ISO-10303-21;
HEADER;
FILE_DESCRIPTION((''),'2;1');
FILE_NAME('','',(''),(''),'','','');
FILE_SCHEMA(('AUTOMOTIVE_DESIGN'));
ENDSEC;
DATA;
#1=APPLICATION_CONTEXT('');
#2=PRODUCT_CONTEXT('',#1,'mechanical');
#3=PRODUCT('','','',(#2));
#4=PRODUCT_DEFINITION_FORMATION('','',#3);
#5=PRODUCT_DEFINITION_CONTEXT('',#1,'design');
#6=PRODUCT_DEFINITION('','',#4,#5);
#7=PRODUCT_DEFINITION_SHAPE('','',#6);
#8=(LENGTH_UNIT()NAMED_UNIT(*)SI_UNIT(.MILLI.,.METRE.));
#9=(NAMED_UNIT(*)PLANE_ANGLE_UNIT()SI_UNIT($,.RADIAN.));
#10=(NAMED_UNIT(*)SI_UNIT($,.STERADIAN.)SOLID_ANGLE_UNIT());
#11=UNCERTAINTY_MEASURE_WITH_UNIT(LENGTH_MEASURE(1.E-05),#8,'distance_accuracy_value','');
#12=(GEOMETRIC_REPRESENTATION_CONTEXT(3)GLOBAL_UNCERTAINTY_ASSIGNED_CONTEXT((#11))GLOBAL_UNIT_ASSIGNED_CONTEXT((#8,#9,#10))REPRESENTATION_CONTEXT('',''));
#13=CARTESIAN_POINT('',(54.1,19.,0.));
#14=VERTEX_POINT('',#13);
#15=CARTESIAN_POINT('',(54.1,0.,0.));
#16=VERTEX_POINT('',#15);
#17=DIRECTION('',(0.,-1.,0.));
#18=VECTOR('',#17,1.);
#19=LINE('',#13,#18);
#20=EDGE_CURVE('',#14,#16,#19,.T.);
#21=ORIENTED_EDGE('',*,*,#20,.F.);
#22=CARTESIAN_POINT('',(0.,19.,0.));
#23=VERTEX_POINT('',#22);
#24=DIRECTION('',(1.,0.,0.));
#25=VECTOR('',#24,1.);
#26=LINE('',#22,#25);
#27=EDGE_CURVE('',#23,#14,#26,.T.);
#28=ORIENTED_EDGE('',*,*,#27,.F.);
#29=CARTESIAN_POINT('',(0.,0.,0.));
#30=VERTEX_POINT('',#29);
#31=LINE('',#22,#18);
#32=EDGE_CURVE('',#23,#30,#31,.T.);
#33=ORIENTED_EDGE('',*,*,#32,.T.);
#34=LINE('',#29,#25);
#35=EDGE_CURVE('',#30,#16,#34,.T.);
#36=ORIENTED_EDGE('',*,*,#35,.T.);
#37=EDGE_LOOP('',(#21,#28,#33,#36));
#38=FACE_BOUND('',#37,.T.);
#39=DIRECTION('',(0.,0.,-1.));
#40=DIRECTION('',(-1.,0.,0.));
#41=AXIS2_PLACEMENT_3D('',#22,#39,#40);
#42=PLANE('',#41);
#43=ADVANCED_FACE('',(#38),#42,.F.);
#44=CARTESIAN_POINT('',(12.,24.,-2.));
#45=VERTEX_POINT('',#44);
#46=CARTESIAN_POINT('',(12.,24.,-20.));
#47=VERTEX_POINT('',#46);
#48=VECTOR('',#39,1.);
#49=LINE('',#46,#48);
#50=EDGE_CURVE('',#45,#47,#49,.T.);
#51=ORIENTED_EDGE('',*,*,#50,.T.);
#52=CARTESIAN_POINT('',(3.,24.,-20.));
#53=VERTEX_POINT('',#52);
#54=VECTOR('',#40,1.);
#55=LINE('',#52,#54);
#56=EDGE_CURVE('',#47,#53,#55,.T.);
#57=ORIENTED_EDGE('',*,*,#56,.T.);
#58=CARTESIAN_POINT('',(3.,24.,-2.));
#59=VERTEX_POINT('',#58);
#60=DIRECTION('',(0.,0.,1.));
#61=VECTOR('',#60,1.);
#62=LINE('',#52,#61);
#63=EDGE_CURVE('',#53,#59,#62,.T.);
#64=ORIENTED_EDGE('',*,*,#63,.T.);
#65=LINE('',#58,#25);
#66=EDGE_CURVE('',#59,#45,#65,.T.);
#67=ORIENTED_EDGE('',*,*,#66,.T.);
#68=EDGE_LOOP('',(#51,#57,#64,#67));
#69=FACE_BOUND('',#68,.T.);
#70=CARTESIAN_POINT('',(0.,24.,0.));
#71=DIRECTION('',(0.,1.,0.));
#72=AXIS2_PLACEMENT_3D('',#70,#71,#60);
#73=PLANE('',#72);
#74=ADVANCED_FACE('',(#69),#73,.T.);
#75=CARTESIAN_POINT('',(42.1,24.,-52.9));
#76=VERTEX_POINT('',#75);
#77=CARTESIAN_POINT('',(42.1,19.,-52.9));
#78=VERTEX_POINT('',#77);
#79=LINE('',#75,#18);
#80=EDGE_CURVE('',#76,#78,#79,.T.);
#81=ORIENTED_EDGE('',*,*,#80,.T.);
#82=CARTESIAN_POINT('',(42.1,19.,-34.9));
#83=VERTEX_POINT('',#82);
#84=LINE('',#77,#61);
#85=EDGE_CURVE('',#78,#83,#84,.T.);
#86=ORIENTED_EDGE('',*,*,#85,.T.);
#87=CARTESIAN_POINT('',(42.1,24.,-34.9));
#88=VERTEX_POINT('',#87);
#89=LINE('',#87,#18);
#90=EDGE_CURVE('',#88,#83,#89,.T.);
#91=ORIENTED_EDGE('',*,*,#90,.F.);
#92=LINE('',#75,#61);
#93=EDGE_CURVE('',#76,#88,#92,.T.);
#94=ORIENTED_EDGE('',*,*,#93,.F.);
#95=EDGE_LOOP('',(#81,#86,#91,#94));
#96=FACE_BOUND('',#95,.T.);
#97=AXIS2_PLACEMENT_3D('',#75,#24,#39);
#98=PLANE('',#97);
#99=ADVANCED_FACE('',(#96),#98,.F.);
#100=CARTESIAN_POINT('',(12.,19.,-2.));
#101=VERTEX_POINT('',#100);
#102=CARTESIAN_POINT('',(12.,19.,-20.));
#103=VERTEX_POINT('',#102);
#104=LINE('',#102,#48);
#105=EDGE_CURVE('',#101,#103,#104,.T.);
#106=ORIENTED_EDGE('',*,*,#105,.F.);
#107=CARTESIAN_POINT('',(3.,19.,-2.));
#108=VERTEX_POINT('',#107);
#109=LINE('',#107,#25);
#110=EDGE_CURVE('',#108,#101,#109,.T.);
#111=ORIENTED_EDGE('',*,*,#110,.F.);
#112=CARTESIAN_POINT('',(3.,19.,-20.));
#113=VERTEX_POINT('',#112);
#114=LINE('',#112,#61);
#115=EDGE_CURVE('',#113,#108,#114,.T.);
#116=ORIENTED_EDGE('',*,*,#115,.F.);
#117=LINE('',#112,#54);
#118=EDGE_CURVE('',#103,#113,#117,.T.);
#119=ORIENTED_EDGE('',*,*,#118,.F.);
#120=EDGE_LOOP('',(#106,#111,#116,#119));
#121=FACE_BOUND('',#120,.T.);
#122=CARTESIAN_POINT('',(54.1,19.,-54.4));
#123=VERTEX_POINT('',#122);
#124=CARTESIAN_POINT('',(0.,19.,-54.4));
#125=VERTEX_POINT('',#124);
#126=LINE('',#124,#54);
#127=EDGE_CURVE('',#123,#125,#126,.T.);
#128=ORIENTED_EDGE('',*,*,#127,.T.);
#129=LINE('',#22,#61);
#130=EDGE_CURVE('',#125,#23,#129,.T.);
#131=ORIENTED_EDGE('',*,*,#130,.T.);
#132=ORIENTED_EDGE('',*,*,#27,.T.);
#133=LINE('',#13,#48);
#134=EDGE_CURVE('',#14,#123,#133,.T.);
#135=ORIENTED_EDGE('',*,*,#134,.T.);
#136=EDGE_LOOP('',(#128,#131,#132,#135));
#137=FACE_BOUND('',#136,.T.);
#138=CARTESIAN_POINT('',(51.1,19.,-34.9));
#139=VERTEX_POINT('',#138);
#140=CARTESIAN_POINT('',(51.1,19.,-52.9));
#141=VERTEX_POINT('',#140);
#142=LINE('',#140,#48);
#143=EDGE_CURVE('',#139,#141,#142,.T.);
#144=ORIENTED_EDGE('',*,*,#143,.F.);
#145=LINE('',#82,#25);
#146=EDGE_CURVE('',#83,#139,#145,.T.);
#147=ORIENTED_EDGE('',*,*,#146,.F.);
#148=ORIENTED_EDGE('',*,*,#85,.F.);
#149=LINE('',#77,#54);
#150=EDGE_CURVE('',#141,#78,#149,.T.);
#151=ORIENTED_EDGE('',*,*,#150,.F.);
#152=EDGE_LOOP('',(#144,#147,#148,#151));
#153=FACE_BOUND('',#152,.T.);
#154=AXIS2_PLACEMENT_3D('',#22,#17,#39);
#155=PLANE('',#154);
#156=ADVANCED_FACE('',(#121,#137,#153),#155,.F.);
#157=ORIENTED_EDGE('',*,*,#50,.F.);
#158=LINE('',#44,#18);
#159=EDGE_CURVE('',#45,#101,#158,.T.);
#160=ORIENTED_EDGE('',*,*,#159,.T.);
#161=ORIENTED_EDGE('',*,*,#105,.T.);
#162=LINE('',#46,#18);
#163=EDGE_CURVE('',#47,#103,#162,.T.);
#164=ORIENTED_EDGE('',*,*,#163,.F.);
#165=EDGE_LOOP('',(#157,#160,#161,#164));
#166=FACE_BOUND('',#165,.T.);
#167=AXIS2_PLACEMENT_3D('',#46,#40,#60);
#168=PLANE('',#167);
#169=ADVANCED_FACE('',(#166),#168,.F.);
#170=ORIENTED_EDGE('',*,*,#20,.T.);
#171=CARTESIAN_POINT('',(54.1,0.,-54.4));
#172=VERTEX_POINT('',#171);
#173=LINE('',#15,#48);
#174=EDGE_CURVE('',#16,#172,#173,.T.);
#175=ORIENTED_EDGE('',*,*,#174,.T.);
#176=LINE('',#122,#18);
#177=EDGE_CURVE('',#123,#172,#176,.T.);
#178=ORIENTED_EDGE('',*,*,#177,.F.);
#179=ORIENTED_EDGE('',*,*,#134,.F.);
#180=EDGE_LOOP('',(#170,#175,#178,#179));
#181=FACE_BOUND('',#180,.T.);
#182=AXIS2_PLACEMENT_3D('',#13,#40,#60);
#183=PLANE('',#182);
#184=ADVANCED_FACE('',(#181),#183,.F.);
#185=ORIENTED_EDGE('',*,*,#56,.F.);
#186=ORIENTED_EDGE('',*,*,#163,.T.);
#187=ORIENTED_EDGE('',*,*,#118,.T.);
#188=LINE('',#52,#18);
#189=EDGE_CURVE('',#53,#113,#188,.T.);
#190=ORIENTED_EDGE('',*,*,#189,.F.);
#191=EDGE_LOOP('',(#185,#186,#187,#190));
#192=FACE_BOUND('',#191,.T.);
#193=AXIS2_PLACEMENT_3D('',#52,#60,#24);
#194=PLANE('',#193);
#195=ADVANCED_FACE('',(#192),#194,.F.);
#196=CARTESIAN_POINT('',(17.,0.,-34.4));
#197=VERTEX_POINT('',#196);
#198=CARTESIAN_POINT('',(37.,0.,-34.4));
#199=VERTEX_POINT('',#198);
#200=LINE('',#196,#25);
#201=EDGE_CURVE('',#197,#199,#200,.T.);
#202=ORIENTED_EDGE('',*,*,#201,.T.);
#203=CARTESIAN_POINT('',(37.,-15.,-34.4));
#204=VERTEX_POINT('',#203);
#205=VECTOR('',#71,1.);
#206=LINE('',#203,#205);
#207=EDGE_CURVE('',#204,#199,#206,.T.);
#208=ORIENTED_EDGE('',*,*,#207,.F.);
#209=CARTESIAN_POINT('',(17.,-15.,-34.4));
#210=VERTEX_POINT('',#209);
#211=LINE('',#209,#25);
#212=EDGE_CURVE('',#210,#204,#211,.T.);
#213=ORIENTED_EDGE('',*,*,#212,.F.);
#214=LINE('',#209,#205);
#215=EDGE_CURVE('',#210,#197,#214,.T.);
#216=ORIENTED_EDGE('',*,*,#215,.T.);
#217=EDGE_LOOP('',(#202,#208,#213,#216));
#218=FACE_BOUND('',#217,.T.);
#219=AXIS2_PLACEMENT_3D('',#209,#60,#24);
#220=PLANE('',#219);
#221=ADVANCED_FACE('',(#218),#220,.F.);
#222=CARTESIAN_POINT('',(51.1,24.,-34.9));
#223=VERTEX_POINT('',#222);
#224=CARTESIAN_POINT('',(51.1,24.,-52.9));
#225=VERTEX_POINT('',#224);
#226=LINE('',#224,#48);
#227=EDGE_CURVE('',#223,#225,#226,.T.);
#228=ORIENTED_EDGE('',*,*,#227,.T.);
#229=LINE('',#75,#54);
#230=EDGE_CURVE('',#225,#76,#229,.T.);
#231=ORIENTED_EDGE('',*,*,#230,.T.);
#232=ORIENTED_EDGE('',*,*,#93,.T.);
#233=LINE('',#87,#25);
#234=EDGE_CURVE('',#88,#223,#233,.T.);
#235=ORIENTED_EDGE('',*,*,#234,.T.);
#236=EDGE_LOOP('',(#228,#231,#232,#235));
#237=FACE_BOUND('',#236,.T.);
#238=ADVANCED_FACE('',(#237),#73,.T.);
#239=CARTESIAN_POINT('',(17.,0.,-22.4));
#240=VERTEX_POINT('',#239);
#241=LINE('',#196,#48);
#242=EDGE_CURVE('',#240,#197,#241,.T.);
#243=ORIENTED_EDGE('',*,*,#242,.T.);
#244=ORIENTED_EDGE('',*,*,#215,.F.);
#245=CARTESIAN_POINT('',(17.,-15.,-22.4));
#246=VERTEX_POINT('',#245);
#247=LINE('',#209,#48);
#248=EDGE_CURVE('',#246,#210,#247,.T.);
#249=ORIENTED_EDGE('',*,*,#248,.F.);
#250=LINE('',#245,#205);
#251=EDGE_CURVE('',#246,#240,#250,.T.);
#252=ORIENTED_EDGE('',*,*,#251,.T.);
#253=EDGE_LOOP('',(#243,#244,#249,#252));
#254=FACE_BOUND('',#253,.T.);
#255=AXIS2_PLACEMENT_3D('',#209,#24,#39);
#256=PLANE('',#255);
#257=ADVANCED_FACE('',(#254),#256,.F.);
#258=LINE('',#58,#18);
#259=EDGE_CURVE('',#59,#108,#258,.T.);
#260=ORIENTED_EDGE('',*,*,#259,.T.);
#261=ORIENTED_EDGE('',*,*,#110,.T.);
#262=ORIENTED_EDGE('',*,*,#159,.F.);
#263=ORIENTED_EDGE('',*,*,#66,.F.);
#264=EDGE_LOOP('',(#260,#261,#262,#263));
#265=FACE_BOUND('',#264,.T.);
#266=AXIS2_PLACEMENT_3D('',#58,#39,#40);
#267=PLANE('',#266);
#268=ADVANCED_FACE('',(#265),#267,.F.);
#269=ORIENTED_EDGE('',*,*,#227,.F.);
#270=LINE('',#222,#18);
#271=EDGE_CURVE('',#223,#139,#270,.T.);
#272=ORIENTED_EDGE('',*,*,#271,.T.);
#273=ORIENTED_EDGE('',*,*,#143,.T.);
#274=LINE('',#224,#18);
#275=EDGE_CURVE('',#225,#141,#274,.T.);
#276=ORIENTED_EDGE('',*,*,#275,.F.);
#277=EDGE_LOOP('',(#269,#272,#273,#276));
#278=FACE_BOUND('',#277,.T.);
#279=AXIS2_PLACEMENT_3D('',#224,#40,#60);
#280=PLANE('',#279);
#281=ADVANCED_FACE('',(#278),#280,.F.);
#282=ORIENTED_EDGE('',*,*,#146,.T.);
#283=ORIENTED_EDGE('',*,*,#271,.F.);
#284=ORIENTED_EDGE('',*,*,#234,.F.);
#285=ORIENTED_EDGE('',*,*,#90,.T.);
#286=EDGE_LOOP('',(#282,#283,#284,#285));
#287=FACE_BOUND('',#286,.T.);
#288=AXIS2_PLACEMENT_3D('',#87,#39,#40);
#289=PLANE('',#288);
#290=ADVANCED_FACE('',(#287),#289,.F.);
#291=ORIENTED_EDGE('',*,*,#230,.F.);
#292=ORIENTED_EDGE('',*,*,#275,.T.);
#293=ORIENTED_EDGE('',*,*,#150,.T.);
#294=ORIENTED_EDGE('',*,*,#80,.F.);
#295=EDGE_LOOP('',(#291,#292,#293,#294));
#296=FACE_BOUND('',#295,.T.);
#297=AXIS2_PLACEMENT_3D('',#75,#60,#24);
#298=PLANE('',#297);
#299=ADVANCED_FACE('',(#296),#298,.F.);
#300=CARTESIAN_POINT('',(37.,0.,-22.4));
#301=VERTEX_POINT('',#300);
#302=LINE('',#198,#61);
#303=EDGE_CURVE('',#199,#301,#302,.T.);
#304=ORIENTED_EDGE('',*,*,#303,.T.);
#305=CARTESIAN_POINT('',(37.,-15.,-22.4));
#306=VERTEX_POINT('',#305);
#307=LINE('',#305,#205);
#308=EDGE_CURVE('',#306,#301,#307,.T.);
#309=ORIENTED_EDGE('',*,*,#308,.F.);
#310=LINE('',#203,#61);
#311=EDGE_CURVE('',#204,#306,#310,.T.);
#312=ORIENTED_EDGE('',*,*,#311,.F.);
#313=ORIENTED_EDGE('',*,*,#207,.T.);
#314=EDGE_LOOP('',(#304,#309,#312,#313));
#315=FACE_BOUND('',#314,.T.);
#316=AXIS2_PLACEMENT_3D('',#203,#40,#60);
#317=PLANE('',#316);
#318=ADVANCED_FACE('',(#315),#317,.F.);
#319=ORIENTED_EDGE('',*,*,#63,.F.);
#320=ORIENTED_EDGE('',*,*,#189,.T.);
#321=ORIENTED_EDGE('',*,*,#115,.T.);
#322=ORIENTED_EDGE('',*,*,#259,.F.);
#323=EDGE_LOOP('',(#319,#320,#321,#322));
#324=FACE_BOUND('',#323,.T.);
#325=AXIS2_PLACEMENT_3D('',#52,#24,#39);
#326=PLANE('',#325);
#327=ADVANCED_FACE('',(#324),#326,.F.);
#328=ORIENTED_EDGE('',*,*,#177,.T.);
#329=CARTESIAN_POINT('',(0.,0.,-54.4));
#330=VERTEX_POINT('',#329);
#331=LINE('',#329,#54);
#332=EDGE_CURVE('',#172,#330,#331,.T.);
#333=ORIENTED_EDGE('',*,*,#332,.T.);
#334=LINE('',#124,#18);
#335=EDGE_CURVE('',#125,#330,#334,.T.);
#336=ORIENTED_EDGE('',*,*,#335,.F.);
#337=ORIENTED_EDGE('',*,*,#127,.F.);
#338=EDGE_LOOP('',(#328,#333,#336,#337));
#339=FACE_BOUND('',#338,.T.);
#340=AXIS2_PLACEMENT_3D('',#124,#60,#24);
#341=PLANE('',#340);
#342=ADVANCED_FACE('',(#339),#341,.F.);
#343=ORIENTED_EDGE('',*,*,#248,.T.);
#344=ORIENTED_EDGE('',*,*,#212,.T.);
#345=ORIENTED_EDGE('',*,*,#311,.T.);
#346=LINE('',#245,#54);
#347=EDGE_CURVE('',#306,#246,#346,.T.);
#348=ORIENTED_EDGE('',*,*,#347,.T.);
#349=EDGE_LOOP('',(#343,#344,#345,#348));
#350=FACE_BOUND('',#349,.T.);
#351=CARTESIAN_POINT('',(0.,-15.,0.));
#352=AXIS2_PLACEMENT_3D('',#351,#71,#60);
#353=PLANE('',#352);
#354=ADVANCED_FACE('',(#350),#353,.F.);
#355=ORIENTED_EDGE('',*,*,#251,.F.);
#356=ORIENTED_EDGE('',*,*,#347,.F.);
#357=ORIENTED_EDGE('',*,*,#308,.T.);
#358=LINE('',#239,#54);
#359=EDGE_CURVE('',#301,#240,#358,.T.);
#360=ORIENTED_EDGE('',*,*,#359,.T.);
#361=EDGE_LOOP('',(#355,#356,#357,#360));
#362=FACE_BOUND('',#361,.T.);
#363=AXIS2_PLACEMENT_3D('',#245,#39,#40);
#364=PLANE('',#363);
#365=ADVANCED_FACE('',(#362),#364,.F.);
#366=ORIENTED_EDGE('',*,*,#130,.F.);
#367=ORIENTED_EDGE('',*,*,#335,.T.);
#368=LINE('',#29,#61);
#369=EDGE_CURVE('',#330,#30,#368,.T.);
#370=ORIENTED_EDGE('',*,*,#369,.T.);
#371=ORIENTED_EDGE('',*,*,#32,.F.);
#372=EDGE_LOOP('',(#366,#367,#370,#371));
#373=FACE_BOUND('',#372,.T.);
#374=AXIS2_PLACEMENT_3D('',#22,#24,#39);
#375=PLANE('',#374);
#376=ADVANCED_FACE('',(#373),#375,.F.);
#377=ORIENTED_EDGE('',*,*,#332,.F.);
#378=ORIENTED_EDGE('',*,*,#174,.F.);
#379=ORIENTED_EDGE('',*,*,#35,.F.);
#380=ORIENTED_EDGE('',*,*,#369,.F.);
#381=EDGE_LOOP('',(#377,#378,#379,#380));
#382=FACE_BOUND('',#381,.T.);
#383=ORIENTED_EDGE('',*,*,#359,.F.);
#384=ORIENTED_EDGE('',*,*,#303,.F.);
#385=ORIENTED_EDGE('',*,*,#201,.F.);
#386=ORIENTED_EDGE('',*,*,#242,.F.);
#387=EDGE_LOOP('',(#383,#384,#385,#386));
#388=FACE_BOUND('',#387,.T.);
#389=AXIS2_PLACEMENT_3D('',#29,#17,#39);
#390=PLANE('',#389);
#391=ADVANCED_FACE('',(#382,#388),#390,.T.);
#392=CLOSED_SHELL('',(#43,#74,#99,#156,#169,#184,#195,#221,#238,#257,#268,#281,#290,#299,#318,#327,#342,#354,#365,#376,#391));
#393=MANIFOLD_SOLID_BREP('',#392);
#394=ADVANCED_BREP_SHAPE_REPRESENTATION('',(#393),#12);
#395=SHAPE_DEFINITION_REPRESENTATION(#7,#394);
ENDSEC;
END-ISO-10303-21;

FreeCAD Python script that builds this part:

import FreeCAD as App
import Part
import Sketcher
from FreeCAD import Vector

doc = App.newDocument("Part")
body = doc.addObject("PartDesign::Body", "Body")

sketch1 = body.newObject("Sketcher::SketchObject", "Sketch")
sketch1.AttachmentSupport = (doc.getObject("XZ_Plane"), [""])
sketch1.MapMode = "FlatFace"
sketch1.addGeometry([
    Part.LineSegment(Vector(0, -54.4, 0), Vector(0, 0, 0)),
    Part.LineSegment(Vector(0, 0, 0), Vector(54.1, 0, 0)),
    Part.LineSegment(Vector(54.1, 0, 0), Vector(54.1, -54.4, 0)),
    Part.LineSegment(Vector(54.1, -54.4, 0), Vector(0, -54.4, 0)),
], False)
sketch1.addConstraint([
    Sketcher.Constraint("Coincident", 0, 2, 1, 1),
    Sketcher.Constraint("Coincident", 1, 2, 2, 1),
    Sketcher.Constraint("Coincident", 2, 2, 3, 1),
    Sketcher.Constraint("Coincident", 3, 2, 0, 1),
    Sketcher.Constraint("Vertical", 0),
    Sketcher.Constraint("Horizontal", 1),
    Sketcher.Constraint("Vertical", 2),
    Sketcher.Constraint("Horizontal", 3),
    Sketcher.Constraint("Coincident", 0, 2, -1, 1),
    Sketcher.Constraint("DistanceX", 1, 1, 1, 2, 54.1),
    Sketcher.Constraint("DistanceY", 0, 1, 0, 2, 54.4),
])
pad1 = body.newObject("PartDesign::Pad", "Pad")
pad1.Profile = sketch1
pad1.Length = 19
pad1.Reversed = True

sketch2 = body.newObject("Sketcher::SketchObject", "Sketch001")
sketch2.AttachmentSupport = (doc.getObject("XZ_Plane"), [""])
sketch2.MapMode = "FlatFace"
sketch2.addGeometry([
    Part.LineSegment(Vector(17, -22.4, 0), Vector(17, -34.4, 0)),
    Part.LineSegment(Vector(17, -34.4, 0), Vector(37, -34.4, 0)),
    Part.LineSegment(Vector(37, -34.4, 0), Vector(37, -22.4, 0)),
    Part.LineSegment(Vector(37, -22.4, 0), Vector(17, -22.4, 0)),
], False)
sketch2.addConstraint([
    Sketcher.Constraint("Coincident", 0, 2, 1, 1),
    Sketcher.Constraint("Coincident", 1, 2, 2, 1),
    Sketcher.Constraint("Coincident", 2, 2, 3, 1),
    Sketcher.Constraint("Coincident", 3, 2, 0, 1),
    Sketcher.Constraint("Vertical", 0),
    Sketcher.Constraint("Horizontal", 1),
    Sketcher.Constraint("Vertical", 2),
    Sketcher.Constraint("Horizontal", 3),
    Sketcher.Constraint("DistanceX", 1, 1, 1, 2, 20.0),
    Sketcher.Constraint("DistanceY", 0, 2, 0, 1, 12.0),
    Sketcher.Constraint("DistanceX", -1, 1, 0, 2, 17.0),
    Sketcher.Constraint("DistanceY", 0, 2, -1, 1, 34.4),
])
pad2 = body.newObject("PartDesign::Pad", "Pad001")
pad2.Profile = sketch2
pad2.Length = 15

sketch3 = body.newObject("Sketcher::SketchObject", "Sketch002")
sketch3.AttachmentSupport = (doc.getObject("XZ_Plane"), [""])
sketch3.MapMode = "FlatFace"
sketch3.AttachmentOffset = App.Placement(Vector(0, 0, -19), App.Rotation())
sketch3.addGeometry([
    Part.LineSegment(Vector(42.1, -52.9, 0), Vector(42.1, -34.9, 0)),
    Part.LineSegment(Vector(42.1, -34.9, 0), Vector(51.1, -34.9, 0)),
    Part.LineSegment(Vector(51.1, -34.9, 0), Vector(51.1, -52.9, 0)),
    Part.LineSegment(Vector(51.1, -52.9, 0), Vector(42.1, -52.9, 0)),
    Part.LineSegment(Vector(3, -20, 0), Vector(3, -2, 0)),
    Part.LineSegment(Vector(3, -2, 0), Vector(12, -2, 0)),
    Part.LineSegment(Vector(12, -2, 0), Vector(12, -20, 0)),
    Part.LineSegment(Vector(12, -20, 0), Vector(3, -20, 0)),
], False)
sketch3.addConstraint([
    Sketcher.Constraint("Coincident", 0, 2, 1, 1),
    Sketcher.Constraint("Coincident", 1, 2, 2, 1),
    Sketcher.Constraint("Coincident", 2, 2, 3, 1),
    Sketcher.Constraint("Coincident", 3, 2, 0, 1),
    Sketcher.Constraint("Coincident", 4, 2, 5, 1),
    Sketcher.Constraint("Coincident", 5, 2, 6, 1),
    Sketcher.Constraint("Coincident", 6, 2, 7, 1),
    Sketcher.Constraint("Coincident", 7, 2, 4, 1),
    Sketcher.Constraint("Vertical", 0),
    Sketcher.Constraint("Horizontal", 1),
    Sketcher.Constraint("Vertical", 2),
    Sketcher.Constraint("Horizontal", 3),
    Sketcher.Constraint("Vertical", 4),
    Sketcher.Constraint("Horizontal", 5),
    Sketcher.Constraint("Vertical", 6),
    Sketcher.Constraint("Horizontal", 7),
    Sketcher.Constraint("Equal", 3, 5),
    Sketcher.Constraint("Equal", 2, 4),
    Sketcher.Constraint("DistanceX", 1, 1, 1, 2, 9.0),
    Sketcher.Constraint("DistanceY", 0, 1, 0, 2, 18.0),
    Sketcher.Constraint("DistanceX", -1, 1, 4, 2, 3.0),
    Sketcher.Constraint("DistanceY", 4, 2, -1, 1, 2.0),
    Sketcher.Constraint("DistanceX", -1, 1, 0, 2, 42.1),
    Sketcher.Constraint("DistanceY", 0, 2, -1, 1, 34.9),
])
pad3 = body.newObject("PartDesign::Pad", "Pad002")
pad3.Profile = sketch3
pad3.Length = 5
pad3.Reversed = True

doc.recompute()
